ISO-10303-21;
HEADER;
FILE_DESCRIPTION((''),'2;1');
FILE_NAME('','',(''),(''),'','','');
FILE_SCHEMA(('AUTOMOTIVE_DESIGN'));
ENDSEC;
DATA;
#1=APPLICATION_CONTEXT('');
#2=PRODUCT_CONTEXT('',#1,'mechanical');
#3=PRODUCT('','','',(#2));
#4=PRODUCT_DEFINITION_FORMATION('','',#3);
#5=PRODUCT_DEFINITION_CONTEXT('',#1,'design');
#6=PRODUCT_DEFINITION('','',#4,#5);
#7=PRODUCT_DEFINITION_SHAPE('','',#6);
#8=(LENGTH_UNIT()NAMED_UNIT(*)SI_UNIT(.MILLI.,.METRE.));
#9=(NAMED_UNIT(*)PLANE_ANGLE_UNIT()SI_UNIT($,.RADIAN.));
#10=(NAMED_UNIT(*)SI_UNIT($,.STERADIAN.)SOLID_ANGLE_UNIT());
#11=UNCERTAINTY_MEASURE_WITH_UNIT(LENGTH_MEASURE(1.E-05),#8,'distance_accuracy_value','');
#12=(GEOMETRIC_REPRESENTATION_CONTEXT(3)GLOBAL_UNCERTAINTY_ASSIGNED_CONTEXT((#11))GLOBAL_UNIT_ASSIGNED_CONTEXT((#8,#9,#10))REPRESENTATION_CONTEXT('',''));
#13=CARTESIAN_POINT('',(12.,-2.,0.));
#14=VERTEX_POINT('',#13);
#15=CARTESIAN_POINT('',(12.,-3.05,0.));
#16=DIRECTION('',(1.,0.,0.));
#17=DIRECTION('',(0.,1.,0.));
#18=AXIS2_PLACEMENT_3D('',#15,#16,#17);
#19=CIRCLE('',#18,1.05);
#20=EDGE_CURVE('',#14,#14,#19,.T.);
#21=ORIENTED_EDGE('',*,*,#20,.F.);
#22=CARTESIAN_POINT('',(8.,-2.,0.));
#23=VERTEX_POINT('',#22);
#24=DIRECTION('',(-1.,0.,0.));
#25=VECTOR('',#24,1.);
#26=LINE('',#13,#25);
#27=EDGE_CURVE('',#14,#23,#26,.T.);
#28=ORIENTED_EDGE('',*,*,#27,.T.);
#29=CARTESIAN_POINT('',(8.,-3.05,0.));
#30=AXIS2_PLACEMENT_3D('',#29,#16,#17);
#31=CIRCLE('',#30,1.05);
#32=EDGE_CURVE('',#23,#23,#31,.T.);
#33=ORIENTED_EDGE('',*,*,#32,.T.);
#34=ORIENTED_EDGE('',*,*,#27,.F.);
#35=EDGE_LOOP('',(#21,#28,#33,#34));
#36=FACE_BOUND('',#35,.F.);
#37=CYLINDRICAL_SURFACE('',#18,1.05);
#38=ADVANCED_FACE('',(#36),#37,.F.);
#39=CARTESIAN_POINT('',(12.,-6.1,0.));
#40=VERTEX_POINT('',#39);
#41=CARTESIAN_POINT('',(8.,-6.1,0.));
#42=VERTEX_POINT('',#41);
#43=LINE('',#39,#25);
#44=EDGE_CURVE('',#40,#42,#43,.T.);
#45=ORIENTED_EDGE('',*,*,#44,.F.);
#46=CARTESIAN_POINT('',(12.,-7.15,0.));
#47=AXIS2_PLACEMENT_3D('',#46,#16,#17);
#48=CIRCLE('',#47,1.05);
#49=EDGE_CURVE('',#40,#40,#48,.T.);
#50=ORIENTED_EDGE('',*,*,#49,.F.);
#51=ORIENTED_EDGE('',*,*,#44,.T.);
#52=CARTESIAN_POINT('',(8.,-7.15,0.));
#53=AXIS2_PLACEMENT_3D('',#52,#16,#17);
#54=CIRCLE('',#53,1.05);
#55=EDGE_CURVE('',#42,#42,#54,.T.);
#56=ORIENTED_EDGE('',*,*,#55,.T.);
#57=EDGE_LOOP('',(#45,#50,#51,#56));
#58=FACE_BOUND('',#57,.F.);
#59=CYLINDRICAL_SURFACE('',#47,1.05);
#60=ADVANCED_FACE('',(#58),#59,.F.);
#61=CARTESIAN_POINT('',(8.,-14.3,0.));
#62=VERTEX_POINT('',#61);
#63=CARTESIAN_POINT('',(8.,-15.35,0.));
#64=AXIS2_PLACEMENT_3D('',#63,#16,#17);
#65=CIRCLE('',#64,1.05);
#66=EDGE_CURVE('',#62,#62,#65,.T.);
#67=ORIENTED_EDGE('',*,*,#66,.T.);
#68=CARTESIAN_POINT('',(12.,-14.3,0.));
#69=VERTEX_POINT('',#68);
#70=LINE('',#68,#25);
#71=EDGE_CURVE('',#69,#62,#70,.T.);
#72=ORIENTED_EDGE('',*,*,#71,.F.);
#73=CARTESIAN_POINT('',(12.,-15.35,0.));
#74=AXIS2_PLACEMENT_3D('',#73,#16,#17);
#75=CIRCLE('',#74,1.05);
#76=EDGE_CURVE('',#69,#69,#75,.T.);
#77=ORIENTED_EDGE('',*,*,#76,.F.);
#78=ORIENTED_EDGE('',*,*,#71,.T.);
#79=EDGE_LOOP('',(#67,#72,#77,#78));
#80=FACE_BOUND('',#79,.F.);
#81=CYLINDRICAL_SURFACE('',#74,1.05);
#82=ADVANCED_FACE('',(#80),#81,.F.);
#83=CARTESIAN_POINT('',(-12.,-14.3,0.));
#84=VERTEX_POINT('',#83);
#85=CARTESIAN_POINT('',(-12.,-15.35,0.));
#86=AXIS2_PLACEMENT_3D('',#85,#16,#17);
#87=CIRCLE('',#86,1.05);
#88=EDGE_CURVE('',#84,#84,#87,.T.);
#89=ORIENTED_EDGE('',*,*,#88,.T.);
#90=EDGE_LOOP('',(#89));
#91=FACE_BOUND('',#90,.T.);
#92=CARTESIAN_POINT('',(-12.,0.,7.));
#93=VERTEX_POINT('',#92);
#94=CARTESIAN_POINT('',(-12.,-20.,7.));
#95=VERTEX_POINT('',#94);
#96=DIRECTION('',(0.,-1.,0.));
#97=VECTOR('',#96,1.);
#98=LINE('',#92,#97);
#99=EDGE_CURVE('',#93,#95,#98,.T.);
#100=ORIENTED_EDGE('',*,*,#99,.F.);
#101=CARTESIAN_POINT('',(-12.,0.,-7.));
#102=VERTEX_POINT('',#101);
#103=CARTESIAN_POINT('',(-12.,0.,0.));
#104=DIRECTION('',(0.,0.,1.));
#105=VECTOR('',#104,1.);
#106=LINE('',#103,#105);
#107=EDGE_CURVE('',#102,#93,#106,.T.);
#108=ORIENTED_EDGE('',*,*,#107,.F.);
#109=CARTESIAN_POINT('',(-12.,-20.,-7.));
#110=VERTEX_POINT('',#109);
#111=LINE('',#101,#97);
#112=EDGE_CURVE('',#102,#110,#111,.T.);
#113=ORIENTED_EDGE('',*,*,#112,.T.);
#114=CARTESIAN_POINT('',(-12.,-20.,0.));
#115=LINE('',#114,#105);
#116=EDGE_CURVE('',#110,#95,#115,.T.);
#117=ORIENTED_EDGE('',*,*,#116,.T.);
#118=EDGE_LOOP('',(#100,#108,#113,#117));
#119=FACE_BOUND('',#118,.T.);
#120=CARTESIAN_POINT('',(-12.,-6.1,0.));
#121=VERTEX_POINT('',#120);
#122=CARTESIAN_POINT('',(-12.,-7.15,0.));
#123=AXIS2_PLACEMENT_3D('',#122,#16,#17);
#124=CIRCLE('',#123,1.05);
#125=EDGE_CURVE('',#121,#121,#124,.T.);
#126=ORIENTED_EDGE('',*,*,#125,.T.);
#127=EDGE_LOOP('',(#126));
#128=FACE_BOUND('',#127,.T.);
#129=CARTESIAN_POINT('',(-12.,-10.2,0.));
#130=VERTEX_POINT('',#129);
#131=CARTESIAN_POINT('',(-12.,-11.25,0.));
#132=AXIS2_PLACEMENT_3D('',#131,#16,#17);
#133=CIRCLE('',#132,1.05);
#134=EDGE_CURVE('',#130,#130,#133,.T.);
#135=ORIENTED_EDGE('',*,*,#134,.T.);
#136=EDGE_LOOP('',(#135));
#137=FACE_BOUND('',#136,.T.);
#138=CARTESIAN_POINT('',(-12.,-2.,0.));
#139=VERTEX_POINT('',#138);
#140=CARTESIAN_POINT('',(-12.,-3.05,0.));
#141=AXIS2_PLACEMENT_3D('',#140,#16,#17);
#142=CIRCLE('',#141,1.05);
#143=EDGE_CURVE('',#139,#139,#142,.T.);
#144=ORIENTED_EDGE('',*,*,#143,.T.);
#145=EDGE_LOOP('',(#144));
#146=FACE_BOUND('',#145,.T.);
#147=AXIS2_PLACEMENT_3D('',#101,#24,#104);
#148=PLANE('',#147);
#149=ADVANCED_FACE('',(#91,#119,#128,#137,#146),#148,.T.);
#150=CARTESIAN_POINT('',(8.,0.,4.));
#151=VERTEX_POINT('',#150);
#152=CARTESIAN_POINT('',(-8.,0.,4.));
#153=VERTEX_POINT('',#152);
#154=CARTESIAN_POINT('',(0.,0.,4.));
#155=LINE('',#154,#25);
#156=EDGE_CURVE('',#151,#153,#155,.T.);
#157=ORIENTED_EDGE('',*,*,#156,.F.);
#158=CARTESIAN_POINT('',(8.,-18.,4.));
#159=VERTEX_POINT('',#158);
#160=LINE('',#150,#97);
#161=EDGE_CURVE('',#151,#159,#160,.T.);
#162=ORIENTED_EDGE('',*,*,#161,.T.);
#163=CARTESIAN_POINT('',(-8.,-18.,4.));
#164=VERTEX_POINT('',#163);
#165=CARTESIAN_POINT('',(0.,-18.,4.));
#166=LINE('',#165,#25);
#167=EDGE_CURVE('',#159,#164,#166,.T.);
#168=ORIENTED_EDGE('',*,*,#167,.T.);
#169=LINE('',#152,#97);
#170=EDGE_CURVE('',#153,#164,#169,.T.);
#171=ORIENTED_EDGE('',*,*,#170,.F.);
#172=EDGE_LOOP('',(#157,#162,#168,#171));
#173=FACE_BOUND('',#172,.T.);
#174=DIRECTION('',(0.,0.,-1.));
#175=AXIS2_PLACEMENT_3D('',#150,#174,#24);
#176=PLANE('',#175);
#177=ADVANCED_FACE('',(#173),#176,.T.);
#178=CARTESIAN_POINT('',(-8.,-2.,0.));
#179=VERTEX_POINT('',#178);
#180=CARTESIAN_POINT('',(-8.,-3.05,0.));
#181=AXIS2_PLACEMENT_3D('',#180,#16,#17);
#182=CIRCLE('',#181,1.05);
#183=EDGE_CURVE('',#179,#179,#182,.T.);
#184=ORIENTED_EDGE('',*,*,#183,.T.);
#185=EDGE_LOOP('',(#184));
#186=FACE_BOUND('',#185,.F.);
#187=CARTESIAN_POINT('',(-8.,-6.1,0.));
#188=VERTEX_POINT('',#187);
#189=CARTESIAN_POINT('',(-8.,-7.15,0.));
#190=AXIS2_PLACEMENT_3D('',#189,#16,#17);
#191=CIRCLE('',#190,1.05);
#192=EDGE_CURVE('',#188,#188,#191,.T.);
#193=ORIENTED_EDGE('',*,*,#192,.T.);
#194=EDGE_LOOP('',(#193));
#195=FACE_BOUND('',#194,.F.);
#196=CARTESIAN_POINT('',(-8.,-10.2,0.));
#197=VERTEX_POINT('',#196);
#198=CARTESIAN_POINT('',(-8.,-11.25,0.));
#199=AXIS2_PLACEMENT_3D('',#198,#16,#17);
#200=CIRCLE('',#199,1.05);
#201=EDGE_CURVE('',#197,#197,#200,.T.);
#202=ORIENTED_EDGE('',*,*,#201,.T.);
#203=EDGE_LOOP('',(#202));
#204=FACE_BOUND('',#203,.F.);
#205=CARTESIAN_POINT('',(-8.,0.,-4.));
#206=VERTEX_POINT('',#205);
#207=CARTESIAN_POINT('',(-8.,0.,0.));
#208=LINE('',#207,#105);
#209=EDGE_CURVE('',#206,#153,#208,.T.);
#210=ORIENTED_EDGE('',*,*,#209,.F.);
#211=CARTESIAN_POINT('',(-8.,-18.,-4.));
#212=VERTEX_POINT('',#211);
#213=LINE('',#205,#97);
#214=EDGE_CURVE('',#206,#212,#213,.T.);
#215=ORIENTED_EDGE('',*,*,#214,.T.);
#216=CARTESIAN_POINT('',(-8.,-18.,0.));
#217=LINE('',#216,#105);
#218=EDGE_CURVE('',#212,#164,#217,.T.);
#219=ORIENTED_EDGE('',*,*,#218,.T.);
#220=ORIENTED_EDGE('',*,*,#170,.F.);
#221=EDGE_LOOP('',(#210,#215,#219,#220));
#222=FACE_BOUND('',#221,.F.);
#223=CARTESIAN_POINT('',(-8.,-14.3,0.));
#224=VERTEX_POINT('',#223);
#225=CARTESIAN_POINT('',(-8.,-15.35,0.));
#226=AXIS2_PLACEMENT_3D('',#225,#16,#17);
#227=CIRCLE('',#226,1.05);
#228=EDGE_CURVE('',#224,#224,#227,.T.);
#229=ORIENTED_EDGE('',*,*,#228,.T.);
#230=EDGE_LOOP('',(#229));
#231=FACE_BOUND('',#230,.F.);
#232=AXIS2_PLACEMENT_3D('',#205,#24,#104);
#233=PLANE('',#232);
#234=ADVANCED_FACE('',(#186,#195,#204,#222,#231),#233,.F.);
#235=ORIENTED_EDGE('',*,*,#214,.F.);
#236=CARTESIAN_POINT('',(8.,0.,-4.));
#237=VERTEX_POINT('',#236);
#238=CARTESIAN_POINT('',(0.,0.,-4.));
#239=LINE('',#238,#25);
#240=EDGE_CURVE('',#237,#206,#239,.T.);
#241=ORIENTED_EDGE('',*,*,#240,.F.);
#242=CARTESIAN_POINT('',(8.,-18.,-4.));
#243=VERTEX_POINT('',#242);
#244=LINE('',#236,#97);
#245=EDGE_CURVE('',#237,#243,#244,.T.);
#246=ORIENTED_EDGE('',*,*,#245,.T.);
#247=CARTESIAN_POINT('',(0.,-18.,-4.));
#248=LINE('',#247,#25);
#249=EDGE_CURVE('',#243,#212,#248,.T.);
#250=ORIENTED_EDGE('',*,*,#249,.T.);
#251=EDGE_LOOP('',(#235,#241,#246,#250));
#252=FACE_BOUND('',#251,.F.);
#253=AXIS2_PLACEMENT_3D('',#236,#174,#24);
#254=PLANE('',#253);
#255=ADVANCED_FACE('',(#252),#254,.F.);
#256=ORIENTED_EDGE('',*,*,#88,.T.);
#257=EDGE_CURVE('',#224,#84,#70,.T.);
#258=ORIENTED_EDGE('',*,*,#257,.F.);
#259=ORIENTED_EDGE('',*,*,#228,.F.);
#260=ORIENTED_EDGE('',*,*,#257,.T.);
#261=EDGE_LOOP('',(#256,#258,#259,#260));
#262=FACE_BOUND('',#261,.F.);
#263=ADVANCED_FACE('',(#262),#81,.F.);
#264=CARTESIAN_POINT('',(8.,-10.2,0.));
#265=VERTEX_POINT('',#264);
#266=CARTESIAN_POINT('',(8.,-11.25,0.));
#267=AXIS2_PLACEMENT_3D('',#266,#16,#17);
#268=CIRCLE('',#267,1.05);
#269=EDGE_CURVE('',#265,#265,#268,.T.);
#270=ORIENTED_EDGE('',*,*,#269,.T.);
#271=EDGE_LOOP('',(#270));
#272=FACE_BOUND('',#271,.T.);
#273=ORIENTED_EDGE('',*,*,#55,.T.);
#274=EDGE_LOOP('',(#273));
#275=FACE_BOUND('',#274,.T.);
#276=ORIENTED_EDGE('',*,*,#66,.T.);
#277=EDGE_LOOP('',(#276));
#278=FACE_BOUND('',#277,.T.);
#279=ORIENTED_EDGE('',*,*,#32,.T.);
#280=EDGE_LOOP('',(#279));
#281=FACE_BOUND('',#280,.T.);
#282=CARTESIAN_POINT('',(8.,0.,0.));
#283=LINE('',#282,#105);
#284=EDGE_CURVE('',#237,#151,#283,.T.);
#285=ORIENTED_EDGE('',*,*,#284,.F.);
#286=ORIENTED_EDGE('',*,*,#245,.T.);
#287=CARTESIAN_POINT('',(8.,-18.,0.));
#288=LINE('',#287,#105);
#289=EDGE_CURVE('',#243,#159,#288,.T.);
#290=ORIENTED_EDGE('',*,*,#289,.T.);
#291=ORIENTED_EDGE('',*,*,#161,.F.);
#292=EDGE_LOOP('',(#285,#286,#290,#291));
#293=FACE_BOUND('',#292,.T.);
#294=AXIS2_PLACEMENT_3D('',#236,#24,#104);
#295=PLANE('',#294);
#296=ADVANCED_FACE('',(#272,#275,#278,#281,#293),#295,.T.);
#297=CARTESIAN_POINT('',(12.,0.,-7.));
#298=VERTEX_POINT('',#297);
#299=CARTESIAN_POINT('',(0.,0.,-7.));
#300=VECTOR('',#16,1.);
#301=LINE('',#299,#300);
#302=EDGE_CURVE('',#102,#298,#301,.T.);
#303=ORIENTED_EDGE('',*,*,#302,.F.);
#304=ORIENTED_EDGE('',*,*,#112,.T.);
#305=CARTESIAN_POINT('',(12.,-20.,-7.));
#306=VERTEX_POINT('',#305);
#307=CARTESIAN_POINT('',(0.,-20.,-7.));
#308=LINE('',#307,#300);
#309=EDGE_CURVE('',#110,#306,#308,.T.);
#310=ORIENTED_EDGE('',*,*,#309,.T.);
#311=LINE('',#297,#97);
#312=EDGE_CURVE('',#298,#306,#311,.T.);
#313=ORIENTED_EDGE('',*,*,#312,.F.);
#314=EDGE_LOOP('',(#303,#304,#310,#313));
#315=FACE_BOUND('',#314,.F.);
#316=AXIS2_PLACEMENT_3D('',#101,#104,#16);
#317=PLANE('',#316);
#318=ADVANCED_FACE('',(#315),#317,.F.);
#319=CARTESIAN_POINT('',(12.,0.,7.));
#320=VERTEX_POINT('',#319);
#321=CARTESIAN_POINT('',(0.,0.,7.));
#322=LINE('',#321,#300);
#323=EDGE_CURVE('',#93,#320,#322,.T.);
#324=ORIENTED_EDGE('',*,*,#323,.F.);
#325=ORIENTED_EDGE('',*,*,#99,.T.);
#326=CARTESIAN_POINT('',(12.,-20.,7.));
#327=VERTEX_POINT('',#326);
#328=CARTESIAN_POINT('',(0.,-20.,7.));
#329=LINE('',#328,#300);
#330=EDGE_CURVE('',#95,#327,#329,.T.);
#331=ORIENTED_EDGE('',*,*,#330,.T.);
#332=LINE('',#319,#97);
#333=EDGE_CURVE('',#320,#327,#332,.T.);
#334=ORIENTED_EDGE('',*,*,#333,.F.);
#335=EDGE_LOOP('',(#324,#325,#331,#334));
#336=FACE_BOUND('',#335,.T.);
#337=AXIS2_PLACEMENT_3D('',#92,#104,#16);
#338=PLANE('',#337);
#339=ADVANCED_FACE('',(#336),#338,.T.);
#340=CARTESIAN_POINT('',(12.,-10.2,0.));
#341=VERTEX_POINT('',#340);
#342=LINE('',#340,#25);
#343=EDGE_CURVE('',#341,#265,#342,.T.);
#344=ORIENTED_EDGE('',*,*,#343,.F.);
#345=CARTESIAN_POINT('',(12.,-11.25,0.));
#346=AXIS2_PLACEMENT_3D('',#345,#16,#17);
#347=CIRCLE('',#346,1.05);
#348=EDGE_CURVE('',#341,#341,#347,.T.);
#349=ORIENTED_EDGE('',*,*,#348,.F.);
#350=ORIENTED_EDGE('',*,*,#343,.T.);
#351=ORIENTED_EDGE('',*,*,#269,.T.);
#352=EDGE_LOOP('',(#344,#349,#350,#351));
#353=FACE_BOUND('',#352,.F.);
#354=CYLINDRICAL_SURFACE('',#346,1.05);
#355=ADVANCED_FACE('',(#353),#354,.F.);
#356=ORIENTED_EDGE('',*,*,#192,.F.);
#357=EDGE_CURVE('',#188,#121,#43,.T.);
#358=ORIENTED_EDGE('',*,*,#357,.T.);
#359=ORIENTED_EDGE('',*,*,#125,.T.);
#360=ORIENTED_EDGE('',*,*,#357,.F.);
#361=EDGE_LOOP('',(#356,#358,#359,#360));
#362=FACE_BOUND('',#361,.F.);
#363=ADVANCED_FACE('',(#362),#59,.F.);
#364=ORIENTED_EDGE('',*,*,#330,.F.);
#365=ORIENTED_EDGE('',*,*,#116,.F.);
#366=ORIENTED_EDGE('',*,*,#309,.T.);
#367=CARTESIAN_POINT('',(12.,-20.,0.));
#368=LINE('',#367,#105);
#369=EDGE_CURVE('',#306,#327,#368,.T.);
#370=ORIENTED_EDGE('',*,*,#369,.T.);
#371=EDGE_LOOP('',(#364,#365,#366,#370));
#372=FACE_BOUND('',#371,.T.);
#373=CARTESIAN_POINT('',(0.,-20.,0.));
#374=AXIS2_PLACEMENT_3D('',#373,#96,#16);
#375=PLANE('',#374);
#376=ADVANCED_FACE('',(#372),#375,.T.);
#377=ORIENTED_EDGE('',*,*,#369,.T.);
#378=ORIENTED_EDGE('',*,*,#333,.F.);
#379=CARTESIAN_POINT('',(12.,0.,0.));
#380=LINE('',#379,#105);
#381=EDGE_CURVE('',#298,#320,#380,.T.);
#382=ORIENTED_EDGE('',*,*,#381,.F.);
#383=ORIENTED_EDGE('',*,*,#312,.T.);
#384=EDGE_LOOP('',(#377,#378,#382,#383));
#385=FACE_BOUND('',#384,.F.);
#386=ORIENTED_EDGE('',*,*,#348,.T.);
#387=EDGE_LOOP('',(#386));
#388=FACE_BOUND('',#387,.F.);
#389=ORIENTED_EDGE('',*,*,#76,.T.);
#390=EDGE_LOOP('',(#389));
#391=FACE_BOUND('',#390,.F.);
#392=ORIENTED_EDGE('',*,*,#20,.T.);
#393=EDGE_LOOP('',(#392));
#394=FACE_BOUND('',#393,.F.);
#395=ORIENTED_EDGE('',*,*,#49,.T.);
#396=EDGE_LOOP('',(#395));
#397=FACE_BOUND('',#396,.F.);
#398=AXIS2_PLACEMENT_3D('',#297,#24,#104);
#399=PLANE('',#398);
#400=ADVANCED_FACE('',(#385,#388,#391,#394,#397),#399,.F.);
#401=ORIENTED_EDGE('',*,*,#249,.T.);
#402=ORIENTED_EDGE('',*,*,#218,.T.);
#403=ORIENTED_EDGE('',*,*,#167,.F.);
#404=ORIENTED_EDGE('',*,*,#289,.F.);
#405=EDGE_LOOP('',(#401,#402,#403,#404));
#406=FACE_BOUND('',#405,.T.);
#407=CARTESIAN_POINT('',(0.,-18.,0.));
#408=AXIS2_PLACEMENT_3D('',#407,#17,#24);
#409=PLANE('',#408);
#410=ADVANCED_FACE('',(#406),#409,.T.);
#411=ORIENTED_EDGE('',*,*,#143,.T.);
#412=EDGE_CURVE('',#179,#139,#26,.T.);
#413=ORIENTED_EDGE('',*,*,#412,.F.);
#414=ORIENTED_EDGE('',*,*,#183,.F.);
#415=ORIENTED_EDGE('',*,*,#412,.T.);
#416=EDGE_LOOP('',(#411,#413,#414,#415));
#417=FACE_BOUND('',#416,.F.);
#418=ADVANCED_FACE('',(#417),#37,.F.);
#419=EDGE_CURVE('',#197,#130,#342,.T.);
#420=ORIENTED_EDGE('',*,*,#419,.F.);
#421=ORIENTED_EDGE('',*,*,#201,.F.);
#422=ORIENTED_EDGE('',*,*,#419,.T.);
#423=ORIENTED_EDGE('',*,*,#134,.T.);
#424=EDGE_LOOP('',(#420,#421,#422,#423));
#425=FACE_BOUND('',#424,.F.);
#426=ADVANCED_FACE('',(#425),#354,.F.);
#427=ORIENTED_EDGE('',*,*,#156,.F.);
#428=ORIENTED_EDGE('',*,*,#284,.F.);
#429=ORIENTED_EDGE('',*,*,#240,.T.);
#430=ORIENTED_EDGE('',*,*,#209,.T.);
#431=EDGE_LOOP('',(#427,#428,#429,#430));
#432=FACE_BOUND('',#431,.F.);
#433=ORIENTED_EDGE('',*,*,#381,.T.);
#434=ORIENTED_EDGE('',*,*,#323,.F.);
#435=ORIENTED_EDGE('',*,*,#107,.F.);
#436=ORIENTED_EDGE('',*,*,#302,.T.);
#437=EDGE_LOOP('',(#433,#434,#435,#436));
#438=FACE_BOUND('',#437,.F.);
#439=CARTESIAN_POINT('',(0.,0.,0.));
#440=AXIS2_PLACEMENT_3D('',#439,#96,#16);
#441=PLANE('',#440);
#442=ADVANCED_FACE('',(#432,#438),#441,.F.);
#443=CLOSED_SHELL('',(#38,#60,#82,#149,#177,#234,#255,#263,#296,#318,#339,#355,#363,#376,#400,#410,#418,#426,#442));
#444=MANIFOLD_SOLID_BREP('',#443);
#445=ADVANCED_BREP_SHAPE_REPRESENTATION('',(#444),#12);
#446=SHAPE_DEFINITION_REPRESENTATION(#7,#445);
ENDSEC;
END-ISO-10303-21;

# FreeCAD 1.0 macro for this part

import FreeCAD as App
import Part
import Sketcher

V = App.Vector


def add_polygon(sketch, points):
    """Adds a closed chain of lines whose ends are joined by coincident constraints."""
    first, n = sketch.GeometryCount, len(points)
    for a, b in zip(points, points[1:] + points[:1]):
        sketch.addGeometry(Part.LineSegment(App.Vector(*a, 0), App.Vector(*b, 0)), False)
    for i in range(n):
        sketch.addConstraint(Sketcher.Constraint("Coincident", first + i, 2, first + (i + 1) % n, 1))

doc = App.newDocument("Part")
params = doc.addObject("Spreadsheet::Sheet", "Params")
for row, (alias, value) in enumerate([
    ("sketch1_width", "24 mm"),
    ("sketch1_height", "14 mm"),
    ("pad1_length", "20 mm"),
    ("sketch2_width", "16 mm"),
    ("sketch2_height", "8 mm"),
    ("pocket1_length", "18 mm"),
    ("sketch3_diameter", "2.1 mm"),
], start=1):
    params.set(f"A{row}", alias)
    params.set(f"B{row}", "=" + value)
    params.setAlias(f"B{row}", alias)

body = doc.addObject("PartDesign::Body", "Body")

sketch1 = body.newObject("Sketcher::SketchObject", "Sketch")
sketch1.AttachmentSupport = (doc.getObject("XZ_Plane"), [""])
sketch1.MapMode = "FlatFace"
add_polygon(sketch1, [(-12, 7), (-12, -7), (12, -7), (12, 7)])
sketch1.addConstraint([
    Sketcher.Constraint("Vertical", 0),
    Sketcher.Constraint("Horizontal", 1),
    Sketcher.Constraint("Vertical", 2),
    Sketcher.Constraint("Horizontal", 3),
    Sketcher.Constraint("Symmetric", 0, 2, 2, 2, -1, 1),
    Sketcher.Constraint("DistanceX", 1, 1, 1, 2, 24.0),
    Sketcher.Constraint("DistanceY", 0, 2, 0, 1, 14.0),
])
sketch1.setExpression("Constraints[9]", "Params.sketch1_width")
sketch1.setExpression("Constraints[10]", "Params.sketch1_height")
pad1 = body.newObject("PartDesign::Pad", "Pad")
pad1.Profile = sketch1
pad1.setExpression("Length", "Params.pad1_length")

sketch2 = body.newObject("Sketcher::SketchObject", "Sketch001")
sketch2.AttachmentSupport = (doc.getObject("XZ_Plane"), [""])
sketch2.MapMode = "FlatFace"
add_polygon(sketch2, [(8, 4), (8, -4), (-8, -4), (-8, 4)])
sketch2.addConstraint([
    Sketcher.Constraint("Vertical", 0),
    Sketcher.Constraint("Horizontal", 1),
    Sketcher.Constraint("Vertical", 2),
    Sketcher.Constraint("Horizontal", 3),
    Sketcher.Constraint("Symmetric", 0, 2, 2, 2, -1, 1),
    Sketcher.Constraint("DistanceX", 1, 2, 1, 1, 16.0),
    Sketcher.Constraint("DistanceY", 0, 2, 0, 1, 8.0),
])
sketch2.setExpression("Constraints[9]", "Params.sketch2_width")
sketch2.setExpression("Constraints[10]", "Params.sketch2_height")
pocket1 = body.newObject("PartDesign::Pocket", "Pocket")
pocket1.Profile = sketch2
pocket1.setExpression("Length", "Params.pocket1_length")
pocket1.Reversed = True

sketch3 = body.newObject("Sketcher::SketchObject", "Sketch002")
sketch3.AttachmentSupport = (doc.getObject("YZ_Plane"), [""])
sketch3.MapMode = "FlatFace"
sketch3.AttachmentOffset = App.Placement(V(0, 0, 12), App.Rotation())
sketch3.addGeometry([
    Part.Circle(V(-15.3, 0, 0), V(0, 0, 1), 1.1),
    Part.Circle(V(-11.2, 0, 0), V(0, 0, 1), 1.1),
    Part.Circle(V(-3, 0, 0), V(0, 0, 1), 1.1),
    Part.Circle(V(-7.2, 0, 0), V(0, 0, 1), 1.1),
], False)
sketch3.addConstraint([
    Sketcher.Constraint("Equal", 0, 1),
    Sketcher.Constraint("Equal", 1, 2),
    Sketcher.Constraint("Equal", 2, 3),
    Sketcher.Constraint("PointOnObject", 0, 3, -1),
    Sketcher.Constraint("PointOnObject", 1, 3, -1),
    Sketcher.Constraint("PointOnObject", 2, 3, -1),
    Sketcher.Constraint("PointOnObject", 3, 3, -1),
    Sketcher.Constraint("Diameter", 0, 2.1),
    Sketcher.Constraint("DistanceX", 0, 3, 1, 3, 4.1),
    Sketcher.Constraint("DistanceX", 1, 3, 2, 3, 8.2),
    Sketcher.Constraint("DistanceX", 1, 3, 3, 3, 4.1),
    Sketcher.Constraint("DistanceX", 0, 3, -1, 1, 15.35),
])
sketch3.setExpression("Constraints[7]", "Params.sketch3_diameter")
pocket2 = body.newObject("PartDesign::Pocket", "Pocket001")
pocket2.Profile = sketch3
pocket2.Type = "ThroughAll"

doc.recompute()
